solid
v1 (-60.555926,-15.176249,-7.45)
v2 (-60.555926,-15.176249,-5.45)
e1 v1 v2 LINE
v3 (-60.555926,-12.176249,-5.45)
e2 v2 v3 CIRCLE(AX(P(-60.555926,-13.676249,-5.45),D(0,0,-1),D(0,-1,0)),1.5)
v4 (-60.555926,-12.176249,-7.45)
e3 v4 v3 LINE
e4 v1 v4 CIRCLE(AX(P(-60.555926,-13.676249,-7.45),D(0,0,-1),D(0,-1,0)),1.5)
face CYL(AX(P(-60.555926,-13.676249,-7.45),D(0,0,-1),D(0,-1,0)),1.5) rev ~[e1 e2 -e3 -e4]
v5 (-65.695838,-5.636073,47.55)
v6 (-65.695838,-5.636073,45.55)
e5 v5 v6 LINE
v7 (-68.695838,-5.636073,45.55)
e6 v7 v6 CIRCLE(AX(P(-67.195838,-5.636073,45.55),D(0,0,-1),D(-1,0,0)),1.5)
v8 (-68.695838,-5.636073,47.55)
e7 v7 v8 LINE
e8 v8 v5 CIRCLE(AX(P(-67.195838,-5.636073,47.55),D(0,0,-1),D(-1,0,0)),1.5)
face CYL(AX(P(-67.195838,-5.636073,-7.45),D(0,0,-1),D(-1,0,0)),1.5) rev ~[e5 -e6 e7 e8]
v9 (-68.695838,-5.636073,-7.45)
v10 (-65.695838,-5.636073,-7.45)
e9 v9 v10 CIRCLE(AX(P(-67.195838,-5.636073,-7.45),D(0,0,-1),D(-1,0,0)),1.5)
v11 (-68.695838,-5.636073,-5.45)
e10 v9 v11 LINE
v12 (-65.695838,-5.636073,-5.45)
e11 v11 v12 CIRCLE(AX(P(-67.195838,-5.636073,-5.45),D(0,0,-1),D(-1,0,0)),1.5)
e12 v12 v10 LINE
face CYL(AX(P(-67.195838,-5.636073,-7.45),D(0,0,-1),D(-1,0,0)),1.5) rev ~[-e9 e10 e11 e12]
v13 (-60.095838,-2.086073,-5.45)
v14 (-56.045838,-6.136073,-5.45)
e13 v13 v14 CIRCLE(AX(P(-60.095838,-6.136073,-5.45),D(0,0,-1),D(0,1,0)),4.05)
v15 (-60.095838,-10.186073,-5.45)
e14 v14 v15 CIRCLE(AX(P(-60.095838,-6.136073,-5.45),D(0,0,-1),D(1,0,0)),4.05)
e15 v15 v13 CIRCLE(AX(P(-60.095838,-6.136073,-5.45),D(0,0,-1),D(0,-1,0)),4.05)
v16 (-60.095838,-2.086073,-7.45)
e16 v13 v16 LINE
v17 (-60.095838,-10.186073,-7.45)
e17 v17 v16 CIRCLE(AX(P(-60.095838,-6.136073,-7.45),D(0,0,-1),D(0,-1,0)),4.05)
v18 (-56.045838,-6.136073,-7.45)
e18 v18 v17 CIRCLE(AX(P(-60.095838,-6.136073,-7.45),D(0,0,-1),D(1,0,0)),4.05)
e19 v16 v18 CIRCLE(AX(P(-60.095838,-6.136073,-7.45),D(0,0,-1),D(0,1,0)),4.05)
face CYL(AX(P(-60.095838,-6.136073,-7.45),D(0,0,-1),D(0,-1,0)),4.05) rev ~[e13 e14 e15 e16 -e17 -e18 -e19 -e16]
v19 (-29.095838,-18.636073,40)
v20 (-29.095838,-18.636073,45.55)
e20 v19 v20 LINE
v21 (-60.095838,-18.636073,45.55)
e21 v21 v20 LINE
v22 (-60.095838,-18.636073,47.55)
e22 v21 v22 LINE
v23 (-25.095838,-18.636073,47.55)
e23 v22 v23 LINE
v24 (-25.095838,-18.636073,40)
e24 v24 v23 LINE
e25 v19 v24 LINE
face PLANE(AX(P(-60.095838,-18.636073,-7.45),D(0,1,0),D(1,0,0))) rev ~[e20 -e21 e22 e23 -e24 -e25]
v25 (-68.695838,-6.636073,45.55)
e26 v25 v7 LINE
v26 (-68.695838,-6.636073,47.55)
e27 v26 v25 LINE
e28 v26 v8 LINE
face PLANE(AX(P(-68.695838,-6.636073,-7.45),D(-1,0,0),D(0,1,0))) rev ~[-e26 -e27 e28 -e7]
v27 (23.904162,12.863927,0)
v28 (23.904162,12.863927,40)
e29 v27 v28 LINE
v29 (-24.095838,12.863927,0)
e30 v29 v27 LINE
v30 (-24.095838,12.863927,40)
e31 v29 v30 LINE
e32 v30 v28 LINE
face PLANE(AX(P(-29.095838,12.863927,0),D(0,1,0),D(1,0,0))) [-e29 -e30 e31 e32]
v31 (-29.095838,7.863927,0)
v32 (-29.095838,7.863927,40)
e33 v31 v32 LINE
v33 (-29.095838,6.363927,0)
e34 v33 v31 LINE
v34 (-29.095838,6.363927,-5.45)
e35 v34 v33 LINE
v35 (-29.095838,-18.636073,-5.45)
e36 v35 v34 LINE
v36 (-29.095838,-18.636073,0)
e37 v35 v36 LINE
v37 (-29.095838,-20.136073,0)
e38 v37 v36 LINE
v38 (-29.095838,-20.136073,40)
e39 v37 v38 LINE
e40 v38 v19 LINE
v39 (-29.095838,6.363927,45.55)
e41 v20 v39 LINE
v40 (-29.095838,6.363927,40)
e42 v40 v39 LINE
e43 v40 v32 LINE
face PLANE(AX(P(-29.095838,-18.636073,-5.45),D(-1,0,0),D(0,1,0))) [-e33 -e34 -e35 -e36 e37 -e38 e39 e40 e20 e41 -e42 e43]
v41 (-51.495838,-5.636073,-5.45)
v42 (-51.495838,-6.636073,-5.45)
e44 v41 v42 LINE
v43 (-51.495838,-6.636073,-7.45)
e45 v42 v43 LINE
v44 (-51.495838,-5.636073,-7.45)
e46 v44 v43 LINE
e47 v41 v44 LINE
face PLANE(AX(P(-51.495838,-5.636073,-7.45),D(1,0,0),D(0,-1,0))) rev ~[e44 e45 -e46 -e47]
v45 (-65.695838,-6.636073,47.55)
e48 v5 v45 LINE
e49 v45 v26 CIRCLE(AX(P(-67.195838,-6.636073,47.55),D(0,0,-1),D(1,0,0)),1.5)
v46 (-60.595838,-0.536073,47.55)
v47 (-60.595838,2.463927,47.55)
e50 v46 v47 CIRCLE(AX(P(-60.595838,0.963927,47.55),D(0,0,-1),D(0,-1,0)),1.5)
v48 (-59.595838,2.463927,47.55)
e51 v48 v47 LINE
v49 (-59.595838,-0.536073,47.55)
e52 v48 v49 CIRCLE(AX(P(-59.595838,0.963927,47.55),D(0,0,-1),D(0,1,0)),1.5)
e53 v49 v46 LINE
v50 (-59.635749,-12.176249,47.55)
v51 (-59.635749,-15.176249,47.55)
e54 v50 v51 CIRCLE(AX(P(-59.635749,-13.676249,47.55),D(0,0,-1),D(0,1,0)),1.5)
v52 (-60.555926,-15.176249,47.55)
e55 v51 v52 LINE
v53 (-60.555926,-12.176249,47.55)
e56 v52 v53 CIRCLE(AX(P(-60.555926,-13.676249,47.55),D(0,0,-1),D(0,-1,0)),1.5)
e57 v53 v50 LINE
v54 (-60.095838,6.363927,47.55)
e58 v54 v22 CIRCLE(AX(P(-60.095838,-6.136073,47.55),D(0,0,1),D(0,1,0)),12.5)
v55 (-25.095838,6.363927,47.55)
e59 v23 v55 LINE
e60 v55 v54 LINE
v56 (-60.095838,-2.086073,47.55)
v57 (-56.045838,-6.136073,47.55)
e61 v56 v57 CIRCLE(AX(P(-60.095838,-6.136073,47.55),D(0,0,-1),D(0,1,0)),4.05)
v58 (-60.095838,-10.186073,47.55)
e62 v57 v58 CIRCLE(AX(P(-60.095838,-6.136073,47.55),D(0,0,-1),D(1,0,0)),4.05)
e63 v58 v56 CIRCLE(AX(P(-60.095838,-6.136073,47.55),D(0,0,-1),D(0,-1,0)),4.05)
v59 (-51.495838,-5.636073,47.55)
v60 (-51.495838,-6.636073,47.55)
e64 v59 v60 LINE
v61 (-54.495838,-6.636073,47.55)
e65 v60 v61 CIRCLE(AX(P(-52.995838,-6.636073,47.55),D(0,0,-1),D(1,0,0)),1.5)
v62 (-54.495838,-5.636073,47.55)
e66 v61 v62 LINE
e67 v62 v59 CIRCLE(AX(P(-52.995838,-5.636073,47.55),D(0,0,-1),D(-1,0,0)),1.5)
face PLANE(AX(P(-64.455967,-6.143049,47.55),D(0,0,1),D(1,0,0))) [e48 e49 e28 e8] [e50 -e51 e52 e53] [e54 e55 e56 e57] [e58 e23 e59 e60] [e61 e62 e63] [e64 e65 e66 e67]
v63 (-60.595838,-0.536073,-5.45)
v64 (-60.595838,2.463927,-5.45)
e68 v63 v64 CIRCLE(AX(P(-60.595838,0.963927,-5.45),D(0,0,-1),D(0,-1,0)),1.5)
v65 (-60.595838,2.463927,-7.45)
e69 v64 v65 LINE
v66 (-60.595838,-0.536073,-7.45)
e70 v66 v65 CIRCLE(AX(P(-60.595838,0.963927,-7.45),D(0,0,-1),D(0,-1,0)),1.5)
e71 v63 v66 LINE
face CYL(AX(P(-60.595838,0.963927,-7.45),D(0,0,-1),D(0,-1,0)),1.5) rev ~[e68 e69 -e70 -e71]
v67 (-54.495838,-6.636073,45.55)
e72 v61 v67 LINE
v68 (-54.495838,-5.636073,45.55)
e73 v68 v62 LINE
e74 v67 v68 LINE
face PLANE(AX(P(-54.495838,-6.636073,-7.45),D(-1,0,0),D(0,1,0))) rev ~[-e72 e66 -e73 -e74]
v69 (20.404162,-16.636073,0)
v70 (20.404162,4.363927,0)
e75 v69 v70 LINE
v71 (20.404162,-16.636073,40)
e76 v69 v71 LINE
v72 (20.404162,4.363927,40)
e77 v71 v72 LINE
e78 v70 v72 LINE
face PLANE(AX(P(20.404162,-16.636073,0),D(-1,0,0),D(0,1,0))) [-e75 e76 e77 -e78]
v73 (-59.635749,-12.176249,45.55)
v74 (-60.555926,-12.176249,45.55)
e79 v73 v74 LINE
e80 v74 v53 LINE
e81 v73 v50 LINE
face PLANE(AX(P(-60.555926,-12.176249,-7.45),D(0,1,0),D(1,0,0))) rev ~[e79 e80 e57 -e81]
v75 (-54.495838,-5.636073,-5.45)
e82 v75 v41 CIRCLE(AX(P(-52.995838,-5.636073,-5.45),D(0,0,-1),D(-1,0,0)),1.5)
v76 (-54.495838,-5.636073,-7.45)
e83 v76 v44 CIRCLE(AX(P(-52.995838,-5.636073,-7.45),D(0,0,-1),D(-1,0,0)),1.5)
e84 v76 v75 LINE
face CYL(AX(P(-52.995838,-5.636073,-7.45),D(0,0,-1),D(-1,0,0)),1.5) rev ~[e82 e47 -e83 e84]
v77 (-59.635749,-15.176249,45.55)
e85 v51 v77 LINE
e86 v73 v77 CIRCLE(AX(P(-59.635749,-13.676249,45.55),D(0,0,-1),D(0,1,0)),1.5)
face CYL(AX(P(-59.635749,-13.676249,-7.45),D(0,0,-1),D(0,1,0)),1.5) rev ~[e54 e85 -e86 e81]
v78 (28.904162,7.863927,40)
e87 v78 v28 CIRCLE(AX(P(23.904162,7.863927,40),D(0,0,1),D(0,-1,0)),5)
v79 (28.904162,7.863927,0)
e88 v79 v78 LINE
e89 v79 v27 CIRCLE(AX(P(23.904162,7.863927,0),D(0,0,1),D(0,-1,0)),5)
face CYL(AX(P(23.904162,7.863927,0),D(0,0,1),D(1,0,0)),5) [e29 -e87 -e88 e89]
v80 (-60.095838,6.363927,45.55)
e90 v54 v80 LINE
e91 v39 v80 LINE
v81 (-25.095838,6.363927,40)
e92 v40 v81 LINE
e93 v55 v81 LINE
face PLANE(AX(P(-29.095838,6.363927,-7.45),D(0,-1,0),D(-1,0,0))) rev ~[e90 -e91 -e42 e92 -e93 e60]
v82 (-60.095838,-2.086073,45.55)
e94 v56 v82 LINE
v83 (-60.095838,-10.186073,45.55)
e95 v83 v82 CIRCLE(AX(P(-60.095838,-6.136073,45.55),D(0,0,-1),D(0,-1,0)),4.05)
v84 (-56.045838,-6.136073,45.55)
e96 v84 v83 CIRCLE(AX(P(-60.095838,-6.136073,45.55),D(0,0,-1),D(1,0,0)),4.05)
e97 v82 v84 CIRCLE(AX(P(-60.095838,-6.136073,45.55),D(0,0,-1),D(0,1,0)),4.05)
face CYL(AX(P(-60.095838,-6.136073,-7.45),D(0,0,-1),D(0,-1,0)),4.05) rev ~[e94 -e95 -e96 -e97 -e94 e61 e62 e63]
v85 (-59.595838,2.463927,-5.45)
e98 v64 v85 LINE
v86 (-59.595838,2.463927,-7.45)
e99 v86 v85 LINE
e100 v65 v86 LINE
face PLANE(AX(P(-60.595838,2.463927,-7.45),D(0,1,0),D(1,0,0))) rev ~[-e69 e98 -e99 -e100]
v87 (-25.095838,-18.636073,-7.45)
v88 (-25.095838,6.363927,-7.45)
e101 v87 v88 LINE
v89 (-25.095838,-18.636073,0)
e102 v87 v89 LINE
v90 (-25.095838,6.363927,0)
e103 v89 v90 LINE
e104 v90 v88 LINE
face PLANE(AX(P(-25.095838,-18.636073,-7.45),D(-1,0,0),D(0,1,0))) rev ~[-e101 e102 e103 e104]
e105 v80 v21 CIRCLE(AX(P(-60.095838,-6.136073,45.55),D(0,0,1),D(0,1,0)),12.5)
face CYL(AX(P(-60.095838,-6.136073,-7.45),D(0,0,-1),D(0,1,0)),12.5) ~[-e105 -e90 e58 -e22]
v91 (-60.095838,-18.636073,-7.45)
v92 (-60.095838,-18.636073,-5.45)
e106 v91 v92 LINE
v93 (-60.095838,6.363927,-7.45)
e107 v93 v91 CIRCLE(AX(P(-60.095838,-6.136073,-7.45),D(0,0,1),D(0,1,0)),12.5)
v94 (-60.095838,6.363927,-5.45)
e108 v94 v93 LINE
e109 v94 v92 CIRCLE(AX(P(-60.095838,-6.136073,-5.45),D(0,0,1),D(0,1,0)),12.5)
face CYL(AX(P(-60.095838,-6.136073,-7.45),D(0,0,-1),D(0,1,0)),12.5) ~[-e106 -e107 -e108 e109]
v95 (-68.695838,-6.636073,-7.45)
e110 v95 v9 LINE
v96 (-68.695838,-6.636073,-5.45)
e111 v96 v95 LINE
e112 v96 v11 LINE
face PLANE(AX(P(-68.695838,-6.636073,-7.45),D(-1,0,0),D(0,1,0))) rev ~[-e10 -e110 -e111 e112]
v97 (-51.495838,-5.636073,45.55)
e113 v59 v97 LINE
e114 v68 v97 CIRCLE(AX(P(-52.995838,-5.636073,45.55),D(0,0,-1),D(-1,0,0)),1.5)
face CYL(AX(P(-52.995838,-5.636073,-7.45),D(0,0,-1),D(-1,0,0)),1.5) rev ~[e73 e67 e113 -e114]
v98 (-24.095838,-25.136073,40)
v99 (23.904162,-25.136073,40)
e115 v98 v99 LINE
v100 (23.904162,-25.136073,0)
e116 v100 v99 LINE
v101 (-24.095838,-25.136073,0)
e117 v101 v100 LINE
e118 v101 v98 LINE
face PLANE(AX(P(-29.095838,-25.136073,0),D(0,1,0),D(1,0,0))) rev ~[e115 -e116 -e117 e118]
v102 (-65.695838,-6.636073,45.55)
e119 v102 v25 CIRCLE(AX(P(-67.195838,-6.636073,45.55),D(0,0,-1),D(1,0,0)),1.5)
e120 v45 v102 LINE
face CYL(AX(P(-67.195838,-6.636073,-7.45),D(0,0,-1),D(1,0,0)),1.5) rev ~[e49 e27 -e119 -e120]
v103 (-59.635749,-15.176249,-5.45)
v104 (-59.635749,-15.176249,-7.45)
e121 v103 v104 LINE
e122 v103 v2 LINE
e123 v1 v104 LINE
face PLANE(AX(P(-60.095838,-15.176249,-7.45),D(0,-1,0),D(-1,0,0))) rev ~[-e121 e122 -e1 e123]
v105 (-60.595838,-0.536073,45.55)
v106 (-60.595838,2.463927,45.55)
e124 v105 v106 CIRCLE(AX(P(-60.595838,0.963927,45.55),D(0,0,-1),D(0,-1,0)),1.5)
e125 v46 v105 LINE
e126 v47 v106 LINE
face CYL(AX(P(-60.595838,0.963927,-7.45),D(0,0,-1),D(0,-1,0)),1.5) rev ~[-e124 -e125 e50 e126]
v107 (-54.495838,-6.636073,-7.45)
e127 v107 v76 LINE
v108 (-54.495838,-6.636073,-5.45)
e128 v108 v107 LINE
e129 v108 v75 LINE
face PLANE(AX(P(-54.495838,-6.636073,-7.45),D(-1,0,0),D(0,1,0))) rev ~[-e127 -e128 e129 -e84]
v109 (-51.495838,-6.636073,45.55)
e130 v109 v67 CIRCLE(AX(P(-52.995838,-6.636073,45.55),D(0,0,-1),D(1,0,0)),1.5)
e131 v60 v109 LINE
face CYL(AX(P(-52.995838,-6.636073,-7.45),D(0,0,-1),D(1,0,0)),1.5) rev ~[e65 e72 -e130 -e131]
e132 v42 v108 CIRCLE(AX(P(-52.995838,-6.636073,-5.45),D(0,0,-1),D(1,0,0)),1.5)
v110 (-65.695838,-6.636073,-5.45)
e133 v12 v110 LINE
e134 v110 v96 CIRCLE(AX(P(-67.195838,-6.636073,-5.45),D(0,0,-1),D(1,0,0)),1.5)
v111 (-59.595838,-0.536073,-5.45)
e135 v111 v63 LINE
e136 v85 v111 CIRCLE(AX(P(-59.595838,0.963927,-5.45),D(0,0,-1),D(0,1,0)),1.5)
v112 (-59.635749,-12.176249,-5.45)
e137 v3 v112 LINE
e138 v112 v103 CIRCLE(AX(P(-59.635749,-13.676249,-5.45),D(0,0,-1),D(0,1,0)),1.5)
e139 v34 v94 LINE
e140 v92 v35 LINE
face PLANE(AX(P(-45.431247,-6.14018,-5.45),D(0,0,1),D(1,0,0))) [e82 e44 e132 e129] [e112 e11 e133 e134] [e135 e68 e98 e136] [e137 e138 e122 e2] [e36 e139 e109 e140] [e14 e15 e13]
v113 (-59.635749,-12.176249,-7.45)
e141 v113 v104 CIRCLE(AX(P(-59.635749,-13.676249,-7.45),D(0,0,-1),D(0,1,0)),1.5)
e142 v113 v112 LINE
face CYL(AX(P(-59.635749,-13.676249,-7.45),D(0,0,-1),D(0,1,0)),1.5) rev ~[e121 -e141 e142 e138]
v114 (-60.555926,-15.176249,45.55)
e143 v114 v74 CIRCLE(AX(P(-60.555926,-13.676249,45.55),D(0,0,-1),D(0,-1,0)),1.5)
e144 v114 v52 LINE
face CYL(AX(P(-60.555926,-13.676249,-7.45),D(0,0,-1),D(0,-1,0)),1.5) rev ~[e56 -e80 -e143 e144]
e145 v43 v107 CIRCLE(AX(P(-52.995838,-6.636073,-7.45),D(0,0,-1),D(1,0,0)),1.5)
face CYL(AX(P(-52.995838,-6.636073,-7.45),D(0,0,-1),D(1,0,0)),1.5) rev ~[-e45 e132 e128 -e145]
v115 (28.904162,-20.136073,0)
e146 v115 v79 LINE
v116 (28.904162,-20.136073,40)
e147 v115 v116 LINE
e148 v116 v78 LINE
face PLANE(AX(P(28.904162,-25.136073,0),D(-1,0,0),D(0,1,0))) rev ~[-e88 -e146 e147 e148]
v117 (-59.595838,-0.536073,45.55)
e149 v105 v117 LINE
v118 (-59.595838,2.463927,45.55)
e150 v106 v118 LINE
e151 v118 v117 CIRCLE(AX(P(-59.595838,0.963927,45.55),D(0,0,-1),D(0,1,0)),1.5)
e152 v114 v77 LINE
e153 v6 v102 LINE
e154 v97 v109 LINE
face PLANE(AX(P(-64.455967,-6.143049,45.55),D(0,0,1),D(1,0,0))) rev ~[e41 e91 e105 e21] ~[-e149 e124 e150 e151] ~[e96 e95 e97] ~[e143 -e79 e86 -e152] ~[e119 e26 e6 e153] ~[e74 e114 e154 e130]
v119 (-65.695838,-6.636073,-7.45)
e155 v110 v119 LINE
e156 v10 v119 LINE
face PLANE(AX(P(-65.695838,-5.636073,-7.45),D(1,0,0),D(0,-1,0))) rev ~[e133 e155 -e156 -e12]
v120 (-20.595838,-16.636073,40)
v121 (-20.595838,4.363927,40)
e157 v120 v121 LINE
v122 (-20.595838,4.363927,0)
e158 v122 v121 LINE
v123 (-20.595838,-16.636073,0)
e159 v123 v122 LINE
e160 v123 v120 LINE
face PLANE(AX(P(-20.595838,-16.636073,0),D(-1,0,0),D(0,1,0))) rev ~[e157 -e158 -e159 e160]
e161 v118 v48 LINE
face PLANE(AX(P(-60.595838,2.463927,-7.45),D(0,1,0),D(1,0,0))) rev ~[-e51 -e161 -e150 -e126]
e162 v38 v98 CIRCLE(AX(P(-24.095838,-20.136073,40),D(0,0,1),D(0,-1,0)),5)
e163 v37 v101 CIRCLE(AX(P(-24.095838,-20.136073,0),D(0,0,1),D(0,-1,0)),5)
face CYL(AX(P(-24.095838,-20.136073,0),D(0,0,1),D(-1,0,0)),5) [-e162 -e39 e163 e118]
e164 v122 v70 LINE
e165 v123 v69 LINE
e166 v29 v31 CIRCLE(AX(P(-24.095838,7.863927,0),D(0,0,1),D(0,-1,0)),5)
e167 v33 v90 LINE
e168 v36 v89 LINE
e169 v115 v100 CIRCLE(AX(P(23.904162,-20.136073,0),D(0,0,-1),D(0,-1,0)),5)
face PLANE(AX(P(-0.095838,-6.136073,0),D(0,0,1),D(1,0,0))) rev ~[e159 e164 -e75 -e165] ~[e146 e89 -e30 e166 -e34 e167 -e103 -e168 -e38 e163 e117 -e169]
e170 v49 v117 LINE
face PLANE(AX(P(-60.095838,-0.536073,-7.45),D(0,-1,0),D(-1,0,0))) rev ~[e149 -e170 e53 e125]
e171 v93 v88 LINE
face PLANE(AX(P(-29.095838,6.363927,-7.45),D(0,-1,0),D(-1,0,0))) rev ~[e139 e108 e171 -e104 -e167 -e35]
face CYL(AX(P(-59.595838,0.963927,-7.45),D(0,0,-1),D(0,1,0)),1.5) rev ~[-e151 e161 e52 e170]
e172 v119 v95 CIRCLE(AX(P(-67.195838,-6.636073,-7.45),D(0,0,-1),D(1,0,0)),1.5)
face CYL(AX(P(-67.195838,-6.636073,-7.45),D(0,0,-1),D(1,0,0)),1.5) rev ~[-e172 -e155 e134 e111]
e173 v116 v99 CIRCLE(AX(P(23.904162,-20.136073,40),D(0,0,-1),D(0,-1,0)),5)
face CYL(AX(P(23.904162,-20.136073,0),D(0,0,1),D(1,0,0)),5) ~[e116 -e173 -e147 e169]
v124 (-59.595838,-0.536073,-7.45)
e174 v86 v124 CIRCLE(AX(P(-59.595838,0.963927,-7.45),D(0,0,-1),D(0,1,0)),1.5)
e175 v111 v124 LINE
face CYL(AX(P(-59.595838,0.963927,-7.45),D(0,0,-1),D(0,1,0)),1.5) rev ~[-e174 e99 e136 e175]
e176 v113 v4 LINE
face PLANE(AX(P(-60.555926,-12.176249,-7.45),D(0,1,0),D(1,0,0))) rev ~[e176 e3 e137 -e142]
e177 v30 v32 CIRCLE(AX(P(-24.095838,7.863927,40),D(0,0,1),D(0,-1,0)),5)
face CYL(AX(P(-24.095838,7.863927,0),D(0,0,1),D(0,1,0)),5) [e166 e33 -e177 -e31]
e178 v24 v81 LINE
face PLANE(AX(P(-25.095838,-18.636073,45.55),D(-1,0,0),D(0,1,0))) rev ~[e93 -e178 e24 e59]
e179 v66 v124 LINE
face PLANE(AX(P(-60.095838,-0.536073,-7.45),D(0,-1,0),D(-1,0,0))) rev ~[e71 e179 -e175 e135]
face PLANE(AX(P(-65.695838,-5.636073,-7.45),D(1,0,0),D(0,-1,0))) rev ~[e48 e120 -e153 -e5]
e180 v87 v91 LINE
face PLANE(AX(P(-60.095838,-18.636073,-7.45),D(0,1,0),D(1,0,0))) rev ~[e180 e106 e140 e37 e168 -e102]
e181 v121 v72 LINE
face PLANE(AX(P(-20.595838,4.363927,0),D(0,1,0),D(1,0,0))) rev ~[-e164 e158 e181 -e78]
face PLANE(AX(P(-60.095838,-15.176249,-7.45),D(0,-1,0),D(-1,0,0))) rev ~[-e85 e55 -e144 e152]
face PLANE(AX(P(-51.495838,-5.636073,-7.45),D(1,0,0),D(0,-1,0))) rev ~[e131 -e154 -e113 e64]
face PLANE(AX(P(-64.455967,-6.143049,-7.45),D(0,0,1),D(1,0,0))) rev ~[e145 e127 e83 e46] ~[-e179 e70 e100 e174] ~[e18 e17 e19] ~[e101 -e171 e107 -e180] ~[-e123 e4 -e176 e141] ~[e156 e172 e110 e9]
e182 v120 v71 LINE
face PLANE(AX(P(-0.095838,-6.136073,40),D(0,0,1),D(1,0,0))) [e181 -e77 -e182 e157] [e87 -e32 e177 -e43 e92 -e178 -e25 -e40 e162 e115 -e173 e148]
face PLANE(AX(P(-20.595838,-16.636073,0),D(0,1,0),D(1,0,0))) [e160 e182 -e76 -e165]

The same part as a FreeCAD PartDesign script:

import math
import FreeCAD as App
import Part
import Sketcher
from FreeCAD import Vector


def edges_at(feature, points):
    """Names of the edges that pass closest to the given points."""
    edges = feature.Shape.Edges
    near = lambda p: min(range(len(edges)), key=lambda i: edges[i].distToShape(Part.Vertex(*p))[0])
    return sorted({f"Edge{near(p) + 1}" for p in points})

doc = App.newDocument("Part")
body = doc.addObject("PartDesign::Body", "Body")

# Sketch on XY plane
sketch1 = body.newObject("Sketcher::SketchObject", "Sketch")
sketch1.AttachmentSupport = (doc.getObject("XY_Plane"), [""])
sketch1.MapMode = "FlatFace"
sketch1.addGeometry([
    Part.LineSegment(Vector(-29.095838, 12.863927, 0), Vector(-29.095838, -25.136073, 0)),  # 0
    Part.LineSegment(Vector(-29.095838, -25.136073, 0), Vector(28.904162, -25.136073, 0)),  # 1
    Part.LineSegment(Vector(28.904162, -25.136073, 0), Vector(28.904162, 12.863927, 0)),  # 2
    Part.LineSegment(Vector(28.904162, 12.863927, 0), Vector(-29.095838, 12.863927, 0)),  # 3
    Part.LineSegment(Vector(20.404162, -16.636073, 0), Vector(-20.595838, -16.636073, 0)),  # 4
    Part.LineSegment(Vector(-20.595838, -16.636073, 0), Vector(-20.595838, 4.363927, 0)),  # 5
    Part.LineSegment(Vector(-20.595838, 4.363927, 0), Vector(20.404162, 4.363927, 0)),  # 6
    Part.LineSegment(Vector(20.404162, 4.363927, 0), Vector(20.404162, -16.636073, 0)),  # 7
], False)
sketch1.addConstraint([
    Sketcher.Constraint("Coincident", 0, 2, 1, 1),
    Sketcher.Constraint("Coincident", 1, 2, 2, 1),
    Sketcher.Constraint("Coincident", 2, 2, 3, 1),
    Sketcher.Constraint("Coincident", 3, 2, 0, 1),
    Sketcher.Constraint("Coincident", 4, 2, 5, 1),
    Sketcher.Constraint("Coincident", 5, 2, 6, 1),
    Sketcher.Constraint("Coincident", 6, 2, 7, 1),
    Sketcher.Constraint("Coincident", 7, 2, 4, 1),
    Sketcher.Constraint("Vertical", 0),
    Sketcher.Constraint("Horizontal", 1),
    Sketcher.Constraint("Vertical", 2),
    Sketcher.Constraint("Horizontal", 3),
    Sketcher.Constraint("Horizontal", 4),
    Sketcher.Constraint("Vertical", 5),
    Sketcher.Constraint("Horizontal", 6),
    Sketcher.Constraint("Vertical", 7),
    Sketcher.Constraint("DistanceX", 1, 1, 1, 2, 58.0),
    Sketcher.Constraint("DistanceX", 4, 2, 4, 1, 41.0),
    Sketcher.Constraint("DistanceY", 0, 2, 0, 1, 38.0),
    Sketcher.Constraint("DistanceY", 5, 1, 5, 2, 21.0),
    Sketcher.Constraint("DistanceX", 0, 2, 4, 2, 8.5),
    Sketcher.Constraint("DistanceY", 0, 2, 4, 2, 8.5),
    Sketcher.Constraint("DistanceX", 0, 2, -1, 1, 29.095838),
    Sketcher.Constraint("DistanceY", 0, 2, -1, 1, 25.136073),
])
pad1 = body.newObject("PartDesign::Pad", "Pad")
pad1.Profile = sketch1
pad1.Length = 40

# Sketch on XY plane
sketch2 = body.newObject("Sketcher::SketchObject", "Sketch001")
sketch2.AttachmentSupport = (doc.getObject("XY_Plane"), [""])
sketch2.MapMode = "FlatFace"
sketch2.AttachmentOffset = App.Placement(Vector(0, 0, 40), App.Rotation())
sketch2.addGeometry([
    Part.LineSegment(Vector(-29.095838, 6.363927, 0), Vector(-29.095838, -18.636073, 0)),
    Part.LineSegment(Vector(-29.095838, -18.636073, 0), Vector(-25.095838, -18.636073, 0)),
    Part.LineSegment(Vector(-25.095838, -18.636073, 0), Vector(-25.095838, 6.363927, 0)),
    Part.LineSegment(Vector(-25.095838, 6.363927, 0), Vector(-29.095838, 6.363927, 0)),
], False)
sketch2.addConstraint([
    Sketcher.Constraint("Coincident", 0, 2, 1, 1),
    Sketcher.Constraint("Coincident", 1, 2, 2, 1),
    Sketcher.Constraint("Coincident", 2, 2, 3, 1),
    Sketcher.Constraint("Coincident", 3, 2, 0, 1),
    Sketcher.Constraint("Vertical", 0),
    Sketcher.Constraint("Horizontal", 1),
    Sketcher.Constraint("Vertical", 2),
    Sketcher.Constraint("Horizontal", 3),
    Sketcher.Constraint("DistanceX", 1, 1, 1, 2, 4.0),
    Sketcher.Constraint("DistanceY", 0, 2, 0, 1, 25.0),
    Sketcher.Constraint("DistanceX", 0, 2, -1, 1, 29.095838),
    Sketcher.Constraint("DistanceY", 0, 2, -1, 1, 18.636073),
])
pad2 = body.newObject("PartDesign::Pad", "Pad001")
pad2.Profile = sketch2
pad2.Length = 5.55

# Sketch on XY plane
sketch3 = body.newObject("Sketcher::SketchObject", "Sketch002")
sketch3.AttachmentSupport = (doc.getObject("XY_Plane"), [""])
sketch3.MapMode = "FlatFace"
sketch3.AttachmentOffset = App.Placement(Vector(0, 0, 40), App.Rotation())
sketch3.addGeometry([
    Part.LineSegment(Vector(-29.095838, 6.363927, 0), Vector(-29.095838, -18.636073, 0)),
    Part.LineSegment(Vector(-29.095838, -18.636073, 0), Vector(-25.095838, -18.636073, 0)),
    Part.LineSegment(Vector(-25.095838, -18.636073, 0), Vector(-25.095838, 6.363927, 0)),
    Part.LineSegment(Vector(-25.095838, 6.363927, 0), Vector(-29.095838, 6.363927, 0)),
], False)
sketch3.addConstraint([
    Sketcher.Constraint("Coincident", 0, 2, 1, 1),
    Sketcher.Constraint("Coincident", 1, 2, 2, 1),
    Sketcher.Constraint("Coincident", 2, 2, 3, 1),
    Sketcher.Constraint("Coincident", 3, 2, 0, 1),
    Sketcher.Constraint("Vertical", 0),
    Sketcher.Constraint("Horizontal", 1),
    Sketcher.Constraint("Vertical", 2),
    Sketcher.Constraint("Horizontal", 3),
    Sketcher.Constraint("DistanceX", 1, 1, 1, 2, 4.0),
    Sketcher.Constraint("DistanceY", 0, 2, 0, 1, 25.0),
    Sketcher.Constraint("DistanceX", 0, 2, -1, 1, 29.095838),
    Sketcher.Constraint("DistanceY", 0, 2, -1, 1, 18.636073),
])
pad3 = body.newObject("PartDesign::Pad", "Pad002")
pad3.Profile = sketch3
pad3.Length = 45.55
pad3.Reversed = True

# Sketch on XY plane
sketch4 = body.newObject("Sketcher::SketchObject", "Sketch003")
sketch4.AttachmentSupport = (doc.getObject("XY_Plane"), [""])
sketch4.MapMode = "FlatFace"
sketch4.AttachmentOffset = App.Placement(Vector(0, 0, 45.55), App.Rotation())
sketch4.addGeometry([
    Part.ArcOfCircle(Part.Circle(Vector(-60.095838, -6.136073, 0), Vector(0, 0, 1), 12.5), math.radians(90), math.radians(270)),  # 0
    Part.LineSegment(Vector(-60.095838, -18.636073, 0), Vector(-25.095838, -18.636073, 0)),  # 1
    Part.LineSegment(Vector(-25.095838, -18.636073, 0), Vector(-25.095838, 6.363927, 0)),  # 2
    Part.LineSegment(Vector(-25.095838, 6.363927, 0), Vector(-60.095838, 6.363927, 0)),  # 3
    Part.LineSegment(Vector(-60.595838, 2.463927, 0), Vector(-59.595838, 2.463927, 0)),  # 4
    Part.ArcOfCircle(Part.Circle(Vector(-59.595838, 0.963927, 0), Vector(0, 0, 1), 1.5), math.radians(-90), math.radians(90)),  # 5
    Part.LineSegment(Vector(-59.595838, -0.536073, 0), Vector(-60.595838, -0.536073, 0)),  # 6
    Part.ArcOfCircle(Part.Circle(Vector(-60.595838, 0.963927, 0), Vector(0, 0, 1), 1.5), math.radians(90), math.radians(270)),  # 7
    Part.ArcOfCircle(Part.Circle(Vector(-60.555926, -13.676249, 0), Vector(0, 0, 1), 1.5), math.radians(90), math.radians(270)),  # 8
    Part.LineSegment(Vector(-60.555926, -12.176249, 0), Vector(-59.635749, -12.176249, 0)),  # 9
    Part.ArcOfCircle(Part.Circle(Vector(-59.635749, -13.676249, 0), Vector(0, 0, 1), 1.5), math.radians(-90), math.radians(90)),  # 10
    Part.LineSegment(Vector(-59.635749, -15.176249, 0), Vector(-60.555926, -15.176249, 0)),  # 11
    Part.ArcOfCircle(Part.Circle(Vector(-60.095838, -6.136073, 0), Vector(0, 0, 1), 4.05), math.radians(90), math.radians(270)),  # 12
    Part.ArcOfCircle(Part.Circle(Vector(-60.095838, -6.136073, 0), Vector(0, 0, 1), 4.05), math.radians(0), math.radians(90)),  # 13
    Part.ArcOfCircle(Part.Circle(Vector(-60.095838, -6.136073, 0), Vector(0, 0, 1), 4.05), math.radians(-90), math.radians(0)),  # 14
    Part.LineSegment(Vector(-68.695838, -6.636073, 0), Vector(-68.695838, -5.636073, 0)),  # 15
    Part.ArcOfCircle(Part.Circle(Vector(-67.195838, -5.636073, 0), Vector(0, 0, 1), 1.5), math.radians(0), math.radians(180)),  # 16
    Part.LineSegment(Vector(-65.695838, -5.636073, 0), Vector(-65.695838, -6.636073, 0)),  # 17
    Part.ArcOfCircle(Part.Circle(Vector(-67.195838, -6.636073, 0), Vector(0, 0, 1), 1.5), math.radians(180), math.radians(360)),  # 18
    Part.LineSegment(Vector(-51.495838, -5.636073, 0), Vector(-51.495838, -6.636073, 0)),  # 19
    Part.ArcOfCircle(Part.Circle(Vector(-52.995838, -6.636073, 0), Vector(0, 0, 1), 1.5), math.radians(180), math.radians(360)),  # 20
    Part.LineSegment(Vector(-54.495838, -6.636073, 0), Vector(-54.495838, -5.636073, 0)),  # 21
    Part.ArcOfCircle(Part.Circle(Vector(-52.995838, -5.636073, 0), Vector(0, 0, 1), 1.5), math.radians(0), math.radians(180)),  # 22
], False)
sketch4.addConstraint([
    Sketcher.Constraint("Tangent", 0, 2, 1, 1),
    Sketcher.Constraint("Coincident", 1, 2, 2, 1),
    Sketcher.Constraint("Coincident", 2, 2, 3, 1),
    Sketcher.Constraint("Tangent", 3, 2, 0, 1),
    Sketcher.Constraint("Tangent", 4, 2, 5, 2),
    Sketcher.Constraint("Tangent", 5, 1, 6, 1),
    Sketcher.Constraint("Tangent", 6, 2, 7, 2),
    Sketcher.Constraint("Tangent", 7, 1, 4, 1),
    Sketcher.Constraint("Tangent", 8, 1, 9, 1),
    Sketcher.Constraint("Tangent", 9, 2, 10, 2),
    Sketcher.Constraint("Tangent", 10, 1, 11, 1),
    Sketcher.Constraint("Tangent", 11, 2, 8, 2),
    Sketcher.Constraint("Tangent", 12, 1, 13, 2),
    Sketcher.Constraint("Tangent", 13, 1, 14, 2),
    Sketcher.Constraint("Tangent", 14, 1, 12, 2),
    Sketcher.Constraint("Tangent", 15, 2, 16, 2),
    Sketcher.Constraint("Tangent", 16, 1, 17, 1),
    Sketcher.Constraint("Tangent", 17, 2, 18, 2),
    Sketcher.Constraint("Tangent", 18, 1, 15, 1),
    Sketcher.Constraint("Tangent", 19, 2, 20, 2),
    Sketcher.Constraint("Tangent", 20, 1, 21, 1),
    Sketcher.Constraint("Tangent", 21, 2, 22, 2),
    Sketcher.Constraint("Tangent", 22, 1, 19, 1),
    Sketcher.Constraint("Horizontal", 1),
    Sketcher.Constraint("Vertical", 2),
    Sketcher.Constraint("Horizontal", 3),
    Sketcher.Constraint("Horizontal", 4),
    Sketcher.Constraint("Horizontal", 6),
    Sketcher.Constraint("Horizontal", 9),
    Sketcher.Constraint("Horizontal", 11),
    Sketcher.Constraint("Vertical", 15),
    Sketcher.Constraint("Vertical", 17),
    Sketcher.Constraint("Vertical", 19),
    Sketcher.Constraint("Vertical", 21),
    Sketcher.Constraint("Coincident", 12, 3, 0, 3),
    Sketcher.Constraint("Equal", 7, 8),
    Sketcher.Constraint("Equal", 10, 16),
    Sketcher.Constraint("Equal", 18, 20),
    Sketcher.Constraint("Horizontal", 18, 3, 20, 3),
    Sketcher.Constraint("Horizontal", 16, 3, 22, 3),
    Sketcher.Constraint("Horizontal", 14, 3, 13, 1),
    Sketcher.Constraint("Vertical", 3, 2, 12, 1),
    Sketcher.Constraint("Vertical", 12, 1, 14, 1),
    Sketcher.Constraint("Equal", 6, 15),
    Sketcher.Constraint("Radius", 0, 12.5),
    Sketcher.Constraint("Radius", 5, 1.5),
    Sketcher.Constraint("DistanceX", 1, 1, 1, 2, 35.0),
    Sketcher.Constraint("DistanceX", 4, 1, 4, 2, 1.0),
    Sketcher.Constraint("Radius", 12, 4.05),
    Sketcher.Constraint("DistanceY", 1, 2, 20, 3, 12.0),
    Sketcher.Constraint("DistanceX", 0, 3, 5, 3, 0.5),
    Sketcher.Constraint("DistanceY", 0, 3, 5, 3, 7.1),
    Sketcher.Constraint("DistanceX", 16, 3, 13, 3, 7.1),
    Sketcher.Constraint("DistanceX", 14, 3, 20, 3, 7.1),
    Sketcher.Constraint("DistanceX", 9, 1, 9, 2, 0.920177),
    Sketcher.Constraint("DistanceY", 8, 3, -1, 1, 13.676249),
    Sketcher.Constraint("DistanceX", 10, 3, -1, 1, 59.635749),
    Sketcher.Constraint("DistanceX", 8, 3, 0, 3, 0.460088),
    Sketcher.Constraint("DistanceY", 0, 3, -1, 1, 6.136073),
])
pad4 = body.newObject("PartDesign::Pad", "Pad003")
pad4.Profile = sketch4
pad4.Length = 2

# Sketch on XY plane
sketch5 = body.newObject("Sketcher::SketchObject", "Sketch004")
sketch5.AttachmentSupport = (doc.getObject("XY_Plane"), [""])
sketch5.MapMode = "FlatFace"
sketch5.AttachmentOffset = App.Placement(Vector(0, 0, -7.45), App.Rotation())
sketch5.addGeometry([
    Part.ArcOfCircle(Part.Circle(Vector(-60.095838, -6.136073, 0), Vector(0, 0, 1), 12.5), math.radians(90), math.radians(270)),  # 0
    Part.LineSegment(Vector(-60.095838, -18.636073, 0), Vector(-25.095838, -18.636073, 0)),  # 1
    Part.LineSegment(Vector(-25.095838, -18.636073, 0), Vector(-25.095838, 6.363927, 0)),  # 2
    Part.LineSegment(Vector(-25.095838, 6.363927, 0), Vector(-60.095838, 6.363927, 0)),  # 3
    Part.LineSegment(Vector(-60.595838, 2.463927, 0), Vector(-59.595838, 2.463927, 0)),  # 4
    Part.ArcOfCircle(Part.Circle(Vector(-59.595838, 0.963927, 0), Vector(0, 0, 1), 1.5), math.radians(-90), math.radians(90)),  # 5
    Part.LineSegment(Vector(-59.595838, -0.536073, 0), Vector(-60.595838, -0.536073, 0)),  # 6
    Part.ArcOfCircle(Part.Circle(Vector(-60.595838, 0.963927, 0), Vector(0, 0, 1), 1.5), math.radians(90), math.radians(270)),  # 7
    Part.ArcOfCircle(Part.Circle(Vector(-60.555926, -13.676249, 0), Vector(0, 0, 1), 1.5), math.radians(90), math.radians(270)),  # 8
    Part.LineSegment(Vector(-60.555926, -12.176249, 0), Vector(-59.635749, -12.176249, 0)),  # 9
    Part.ArcOfCircle(Part.Circle(Vector(-59.635749, -13.676249, 0), Vector(0, 0, 1), 1.5), math.radians(-90), math.radians(90)),  # 10
    Part.LineSegment(Vector(-59.635749, -15.176249, 0), Vector(-60.555926, -15.176249, 0)),  # 11
    Part.ArcOfCircle(Part.Circle(Vector(-60.095838, -6.136073, 0), Vector(0, 0, 1), 4.05), math.radians(90), math.radians(270)),  # 12
    Part.ArcOfCircle(Part.Circle(Vector(-60.095838, -6.136073, 0), Vector(0, 0, 1), 4.05), math.radians(0), math.radians(90)),  # 13
    Part.ArcOfCircle(Part.Circle(Vector(-60.095838, -6.136073, 0), Vector(0, 0, 1), 4.05), math.radians(-90), math.radians(0)),  # 14
    Part.LineSegment(Vector(-68.695838, -6.636073, 0), Vector(-68.695838, -5.636073, 0)),  # 15
    Part.ArcOfCircle(Part.Circle(Vector(-67.195838, -5.636073, 0), Vector(0, 0, 1), 1.5), math.radians(0), math.radians(180)),  # 16
    Part.LineSegment(Vector(-65.695838, -5.636073, 0), Vector(-65.695838, -6.636073, 0)),  # 17
    Part.ArcOfCircle(Part.Circle(Vector(-67.195838, -6.636073, 0), Vector(0, 0, 1), 1.5), math.radians(180), math.radians(360)),  # 18
    Part.LineSegment(Vector(-51.495838, -5.636073, 0), Vector(-51.495838, -6.636073, 0)),  # 19
    Part.ArcOfCircle(Part.Circle(Vector(-52.995838, -6.636073, 0), Vector(0, 0, 1), 1.5), math.radians(180), math.radians(360)),  # 20
    Part.LineSegment(Vector(-54.495838, -6.636073, 0), Vector(-54.495838, -5.636073, 0)),  # 21
    Part.ArcOfCircle(Part.Circle(Vector(-52.995838, -5.636073, 0), Vector(0, 0, 1), 1.5), math.radians(0), math.radians(180)),  # 22
], False)
sketch5.addConstraint([
    Sketcher.Constraint("Tangent", 0, 2, 1, 1),
    Sketcher.Constraint("Coincident", 1, 2, 2, 1),
    Sketcher.Constraint("Coincident", 2, 2, 3, 1),
    Sketcher.Constraint("Tangent", 3, 2, 0, 1),
    Sketcher.Constraint("Tangent", 4, 2, 5, 2),
    Sketcher.Constraint("Tangent", 5, 1, 6, 1),
    Sketcher.Constraint("Tangent", 6, 2, 7, 2),
    Sketcher.Constraint("Tangent", 7, 1, 4, 1),
    Sketcher.Constraint("Tangent", 8, 1, 9, 1),
    Sketcher.Constraint("Tangent", 9, 2, 10, 2),
    Sketcher.Constraint("Tangent", 10, 1, 11, 1),
    Sketcher.Constraint("Tangent", 11, 2, 8, 2),
    Sketcher.Constraint("Tangent", 12, 1, 13, 2),
    Sketcher.Constraint("Tangent", 13, 1, 14, 2),
    Sketcher.Constraint("Tangent", 14, 1, 12, 2),
    Sketcher.Constraint("Tangent", 15, 2, 16, 2),
    Sketcher.Constraint("Tangent", 16, 1, 17, 1),
    Sketcher.Constraint("Tangent", 17, 2, 18, 2),
    Sketcher.Constraint("Tangent", 18, 1, 15, 1),
    Sketcher.Constraint("Tangent", 19, 2, 20, 2),
    Sketcher.Constraint("Tangent", 20, 1, 21, 1),
    Sketcher.Constraint("Tangent", 21, 2, 22, 2),
    Sketcher.Constraint("Tangent", 22, 1, 19, 1),
    Sketcher.Constraint("Horizontal", 1),
    Sketcher.Constraint("Vertical", 2),
    Sketcher.Constraint("Horizontal", 3),
    Sketcher.Constraint("Horizontal", 4),
    Sketcher.Constraint("Horizontal", 6),
    Sketcher.Constraint("Horizontal", 9),
    Sketcher.Constraint("Horizontal", 11),
    Sketcher.Constraint("Vertical", 15),
    Sketcher.Constraint("Vertical", 17),
    Sketcher.Constraint("Vertical", 19),
    Sketcher.Constraint("Vertical", 21),
    Sketcher.Constraint("Coincident", 12, 3, 0, 3),
    Sketcher.Constraint("Equal", 7, 8),
    Sketcher.Constraint("Equal", 10, 16),
    Sketcher.Constraint("Equal", 18, 20),
    Sketcher.Constraint("Horizontal", 18, 3, 20, 3),
    Sketcher.Constraint("Horizontal", 16, 3, 22, 3),
    Sketcher.Constraint("Horizontal", 14, 3, 13, 1),
    Sketcher.Constraint("Vertical", 3, 2, 12, 1),
    Sketcher.Constraint("Vertical", 12, 1, 14, 1),
    Sketcher.Constraint("Equal", 6, 15),
    Sketcher.Constraint("Radius", 0, 12.5),
    Sketcher.Constraint("Radius", 5, 1.5),
    Sketcher.Constraint("DistanceX", 1, 1, 1, 2, 35.0),
    Sketcher.Constraint("DistanceX", 4, 1, 4, 2, 1.0),
    Sketcher.Constraint("Radius", 12, 4.05),
    Sketcher.Constraint("DistanceY", 1, 2, 20, 3, 12.0),
    Sketcher.Constraint("DistanceX", 0, 3, 5, 3, 0.5),
    Sketcher.Constraint("DistanceY", 0, 3, 5, 3, 7.1),
    Sketcher.Constraint("DistanceX", 16, 3, 13, 3, 7.1),
    Sketcher.Constraint("DistanceX", 14, 3, 20, 3, 7.1),
    Sketcher.Constraint("DistanceX", 9, 1, 9, 2, 0.920177),
    Sketcher.Constraint("DistanceY", 8, 3, -1, 1, 13.676249),
    Sketcher.Constraint("DistanceX", 10, 3, -1, 1, 59.635749),
    Sketcher.Constraint("DistanceX", 8, 3, 0, 3, 0.460088),
    Sketcher.Constraint("DistanceY", 0, 3, -1, 1, 6.136073),
])
pad5 = body.newObject("PartDesign::Pad", "Pad004")
pad5.Profile = sketch5
pad5.Length = 53

# Sketch on XY plane
sketch6 = body.newObject("Sketcher::SketchObject", "Sketch005")
sketch6.AttachmentSupport = (doc.getObject("XY_Plane"), [""])
sketch6.MapMode = "FlatFace"
sketch6.AttachmentOffset = App.Placement(Vector(0, 0, -5.45), App.Rotation())
sketch6.addGeometry([
    Part.LineSegment(Vector(-29.095838, -18.636073, 0), Vector(-29.095838, 6.363927, 0)),  # 0
    Part.LineSegment(Vector(-29.095838, 6.363927, 0), Vector(-60.095838, 6.363927, 0)),  # 1
    Part.ArcOfCircle(Part.Circle(Vector(-60.095838, -6.136073, 0), Vector(0, 0, 1), 12.5), math.radians(90), math.radians(270)),  # 2
    Part.LineSegment(Vector(-60.095838, -18.636073, 0), Vector(-29.095838, -18.636073, 0)),  # 3
    Part.LineSegment(Vector(-59.635749, -15.176249, 0), Vector(-60.555926, -15.176249, 0)),  # 4
    Part.ArcOfCircle(Part.Circle(Vector(-60.555926, -13.676249, 0), Vector(0, 0, 1), 1.5), math.radians(90), math.radians(270)),  # 5
    Part.LineSegment(Vector(-60.555926, -12.176249, 0), Vector(-59.635749, -12.176249, 0)),  # 6
    Part.ArcOfCircle(Part.Circle(Vector(-59.635749, -13.676249, 0), Vector(0, 0, 1), 1.5), math.radians(-90), math.radians(90)),  # 7
    Part.ArcOfCircle(Part.Circle(Vector(-59.595838, 0.963927, 0), Vector(0, 0, 1), 1.5), math.radians(-90), math.radians(90)),  # 8
    Part.LineSegment(Vector(-59.595838, -0.536073, 0), Vector(-60.595838, -0.536073, 0)),  # 9
    Part.ArcOfCircle(Part.Circle(Vector(-60.595838, 0.963927, 0), Vector(0, 0, 1), 1.5), math.radians(90), math.radians(270)),  # 10
    Part.LineSegment(Vector(-60.595838, 2.463927, 0), Vector(-59.595838, 2.463927, 0)),  # 11
    Part.ArcOfCircle(Part.Circle(Vector(-60.095838, -6.136073, 0), Vector(0, 0, 1), 4.05), math.radians(-90), math.radians(0)),  # 12
    Part.ArcOfCircle(Part.Circle(Vector(-60.095838, -6.136073, 0), Vector(0, 0, 1), 4.05), math.radians(90), math.radians(270)),  # 13
    Part.ArcOfCircle(Part.Circle(Vector(-60.095838, -6.136073, 0), Vector(0, 0, 1), 4.05), math.radians(0), math.radians(90)),  # 14
    Part.LineSegment(Vector(-54.495838, -6.636073, 0), Vector(-54.495838, -5.636073, 0)),  # 15
    Part.ArcOfCircle(Part.Circle(Vector(-52.995838, -5.636073, 0), Vector(0, 0, 1), 1.5), math.radians(0), math.radians(180)),  # 16
    Part.LineSegment(Vector(-51.495838, -5.636073, 0), Vector(-51.495838, -6.636073, 0)),  # 17
    Part.ArcOfCircle(Part.Circle(Vector(-52.995838, -6.636073, 0), Vector(0, 0, 1), 1.5), math.radians(180), math.radians(360)),  # 18
    Part.LineSegment(Vector(-65.695838, -5.636073, 0), Vector(-65.695838, -6.636073, 0)),  # 19
    Part.ArcOfCircle(Part.Circle(Vector(-67.195838, -6.636073, 0), Vector(0, 0, 1), 1.5), math.radians(180), math.radians(360)),  # 20
    Part.LineSegment(Vector(-68.695838, -6.636073, 0), Vector(-68.695838, -5.636073, 0)),  # 21
    Part.ArcOfCircle(Part.Circle(Vector(-67.195838, -5.636073, 0), Vector(0, 0, 1), 1.5), math.radians(0), math.radians(180)),  # 22
], False)
sketch6.addConstraint([
    Sketcher.Constraint("Coincident", 0, 2, 1, 1),
    Sketcher.Constraint("Tangent", 1, 2, 2, 1),
    Sketcher.Constraint("Tangent", 2, 2, 3, 1),
    Sketcher.Constraint("Coincident", 3, 2, 0, 1),
    Sketcher.Constraint("Tangent", 4, 2, 5, 2),
    Sketcher.Constraint("Tangent", 5, 1, 6, 1),
    Sketcher.Constraint("Tangent", 6, 2, 7, 2),
    Sketcher.Constraint("Tangent", 7, 1, 4, 1),
    Sketcher.Constraint("Tangent", 8, 1, 9, 1),
    Sketcher.Constraint("Tangent", 9, 2, 10, 2),
    Sketcher.Constraint("Tangent", 10, 1, 11, 1),
    Sketcher.Constraint("Tangent", 11, 2, 8, 2),
    Sketcher.Constraint("Tangent", 12, 1, 13, 2),
    Sketcher.Constraint("Tangent", 13, 1, 14, 2),
    Sketcher.Constraint("Tangent", 14, 1, 12, 2),
    Sketcher.Constraint("Tangent", 15, 2, 16, 2),
    Sketcher.Constraint("Tangent", 16, 1, 17, 1),
    Sketcher.Constraint("Tangent", 17, 2, 18, 2),
    Sketcher.Constraint("Tangent", 18, 1, 15, 1),
    Sketcher.Constraint("Tangent", 19, 2, 20, 2),
    Sketcher.Constraint("Tangent", 20, 1, 21, 1),
    Sketcher.Constraint("Tangent", 21, 2, 22, 2),
    Sketcher.Constraint("Tangent", 22, 1, 19, 1),
    Sketcher.Constraint("Vertical", 0),
    Sketcher.Constraint("Horizontal", 1),
    Sketcher.Constraint("Horizontal", 3),
    Sketcher.Constraint("Horizontal", 4),
    Sketcher.Constraint("Horizontal", 6),
    Sketcher.Constraint("Horizontal", 9),
    Sketcher.Constraint("Horizontal", 11),
    Sketcher.Constraint("Vertical", 15),
    Sketcher.Constraint("Vertical", 17),
    Sketcher.Constraint("Vertical", 19),
    Sketcher.Constraint("Vertical", 21),
    Sketcher.Constraint("Coincident", 12, 3, 2, 3),
    Sketcher.Constraint("Equal", 7, 8),
    Sketcher.Constraint("Equal", 10, 16),
    Sketcher.Constraint("Equal", 18, 20),
    Sketcher.Constraint("Horizontal", 18, 3, 20, 3),
    Sketcher.Constraint("Horizontal", 16, 3, 22, 3),
    Sketcher.Constraint("Horizontal", 13, 3, 14, 1),
    Sketcher.Constraint("Vertical", 2, 2, 12, 1),
    Sketcher.Constraint("Vertical", 12, 1, 13, 1),
    Sketcher.Constraint("Equal", 11, 15),
    Sketcher.Constraint("Radius", 2, 12.5),
    Sketcher.Constraint("Radius", 5, 1.5),
    Sketcher.Constraint("DistanceX", 1, 2, 1, 1, 31.0),
    Sketcher.Constraint("DistanceX", 9, 2, 9, 1, 1.0),
    Sketcher.Constraint("Radius", 12, 4.05),
    Sketcher.Constraint("DistanceY", 16, 3, 0, 2, 12.0),
    Sketcher.Constraint("DistanceX", 2, 3, 8, 3, 0.5),
    Sketcher.Constraint("DistanceY", 2, 3, 8, 3, 7.1),
    Sketcher.Constraint("DistanceX", 12, 3, 16, 3, 7.1),
    Sketcher.Constraint("DistanceX", 20, 3, 14, 3, 7.1),
    Sketcher.Constraint("DistanceX", 4, 2, 4, 1, 0.920177),
    Sketcher.Constraint("DistanceY", 5, 3, -1, 1, 13.676249),
    Sketcher.Constraint("DistanceX", 7, 3, -1, 1, 59.635749),
    Sketcher.Constraint("DistanceX", 5, 3, 2, 3, 0.460088),
    Sketcher.Constraint("DistanceY", 2, 3, -1, 1, 6.136073),
])
pocket1 = body.newObject("PartDesign::Pocket", "Pocket")
pocket1.Profile = sketch6
pocket1.Length = 51
pocket1.Reversed = True
doc.recompute()

fillet = body.newObject("PartDesign::Fillet", "Fillet")
fillet.Base = (pocket1, edges_at(pocket1, [(28.904, 12.864, 20)]))
fillet.Radius = 5
doc.recompute()

fillet2 = body.newObject("PartDesign::Fillet", "Fillet001")
fillet2.Base = (fillet, edges_at(fillet, [(28.904, -25.136, 20)]))
fillet2.Radius = 5
doc.recompute()

fillet3 = body.newObject("PartDesign::Fillet", "Fillet002")
fillet3.Base = (fillet2, edges_at(fillet2, [(-29.096, 12.864, 20)]))
fillet3.Radius = 5
doc.recompute()

fillet4 = body.newObject("PartDesign::Fillet", "Fillet003")
fillet4.Base = (fillet3, edges_at(fillet3, [(-29.096, -25.136, 20)]))
fillet4.Radius = 5

doc.recompute()
